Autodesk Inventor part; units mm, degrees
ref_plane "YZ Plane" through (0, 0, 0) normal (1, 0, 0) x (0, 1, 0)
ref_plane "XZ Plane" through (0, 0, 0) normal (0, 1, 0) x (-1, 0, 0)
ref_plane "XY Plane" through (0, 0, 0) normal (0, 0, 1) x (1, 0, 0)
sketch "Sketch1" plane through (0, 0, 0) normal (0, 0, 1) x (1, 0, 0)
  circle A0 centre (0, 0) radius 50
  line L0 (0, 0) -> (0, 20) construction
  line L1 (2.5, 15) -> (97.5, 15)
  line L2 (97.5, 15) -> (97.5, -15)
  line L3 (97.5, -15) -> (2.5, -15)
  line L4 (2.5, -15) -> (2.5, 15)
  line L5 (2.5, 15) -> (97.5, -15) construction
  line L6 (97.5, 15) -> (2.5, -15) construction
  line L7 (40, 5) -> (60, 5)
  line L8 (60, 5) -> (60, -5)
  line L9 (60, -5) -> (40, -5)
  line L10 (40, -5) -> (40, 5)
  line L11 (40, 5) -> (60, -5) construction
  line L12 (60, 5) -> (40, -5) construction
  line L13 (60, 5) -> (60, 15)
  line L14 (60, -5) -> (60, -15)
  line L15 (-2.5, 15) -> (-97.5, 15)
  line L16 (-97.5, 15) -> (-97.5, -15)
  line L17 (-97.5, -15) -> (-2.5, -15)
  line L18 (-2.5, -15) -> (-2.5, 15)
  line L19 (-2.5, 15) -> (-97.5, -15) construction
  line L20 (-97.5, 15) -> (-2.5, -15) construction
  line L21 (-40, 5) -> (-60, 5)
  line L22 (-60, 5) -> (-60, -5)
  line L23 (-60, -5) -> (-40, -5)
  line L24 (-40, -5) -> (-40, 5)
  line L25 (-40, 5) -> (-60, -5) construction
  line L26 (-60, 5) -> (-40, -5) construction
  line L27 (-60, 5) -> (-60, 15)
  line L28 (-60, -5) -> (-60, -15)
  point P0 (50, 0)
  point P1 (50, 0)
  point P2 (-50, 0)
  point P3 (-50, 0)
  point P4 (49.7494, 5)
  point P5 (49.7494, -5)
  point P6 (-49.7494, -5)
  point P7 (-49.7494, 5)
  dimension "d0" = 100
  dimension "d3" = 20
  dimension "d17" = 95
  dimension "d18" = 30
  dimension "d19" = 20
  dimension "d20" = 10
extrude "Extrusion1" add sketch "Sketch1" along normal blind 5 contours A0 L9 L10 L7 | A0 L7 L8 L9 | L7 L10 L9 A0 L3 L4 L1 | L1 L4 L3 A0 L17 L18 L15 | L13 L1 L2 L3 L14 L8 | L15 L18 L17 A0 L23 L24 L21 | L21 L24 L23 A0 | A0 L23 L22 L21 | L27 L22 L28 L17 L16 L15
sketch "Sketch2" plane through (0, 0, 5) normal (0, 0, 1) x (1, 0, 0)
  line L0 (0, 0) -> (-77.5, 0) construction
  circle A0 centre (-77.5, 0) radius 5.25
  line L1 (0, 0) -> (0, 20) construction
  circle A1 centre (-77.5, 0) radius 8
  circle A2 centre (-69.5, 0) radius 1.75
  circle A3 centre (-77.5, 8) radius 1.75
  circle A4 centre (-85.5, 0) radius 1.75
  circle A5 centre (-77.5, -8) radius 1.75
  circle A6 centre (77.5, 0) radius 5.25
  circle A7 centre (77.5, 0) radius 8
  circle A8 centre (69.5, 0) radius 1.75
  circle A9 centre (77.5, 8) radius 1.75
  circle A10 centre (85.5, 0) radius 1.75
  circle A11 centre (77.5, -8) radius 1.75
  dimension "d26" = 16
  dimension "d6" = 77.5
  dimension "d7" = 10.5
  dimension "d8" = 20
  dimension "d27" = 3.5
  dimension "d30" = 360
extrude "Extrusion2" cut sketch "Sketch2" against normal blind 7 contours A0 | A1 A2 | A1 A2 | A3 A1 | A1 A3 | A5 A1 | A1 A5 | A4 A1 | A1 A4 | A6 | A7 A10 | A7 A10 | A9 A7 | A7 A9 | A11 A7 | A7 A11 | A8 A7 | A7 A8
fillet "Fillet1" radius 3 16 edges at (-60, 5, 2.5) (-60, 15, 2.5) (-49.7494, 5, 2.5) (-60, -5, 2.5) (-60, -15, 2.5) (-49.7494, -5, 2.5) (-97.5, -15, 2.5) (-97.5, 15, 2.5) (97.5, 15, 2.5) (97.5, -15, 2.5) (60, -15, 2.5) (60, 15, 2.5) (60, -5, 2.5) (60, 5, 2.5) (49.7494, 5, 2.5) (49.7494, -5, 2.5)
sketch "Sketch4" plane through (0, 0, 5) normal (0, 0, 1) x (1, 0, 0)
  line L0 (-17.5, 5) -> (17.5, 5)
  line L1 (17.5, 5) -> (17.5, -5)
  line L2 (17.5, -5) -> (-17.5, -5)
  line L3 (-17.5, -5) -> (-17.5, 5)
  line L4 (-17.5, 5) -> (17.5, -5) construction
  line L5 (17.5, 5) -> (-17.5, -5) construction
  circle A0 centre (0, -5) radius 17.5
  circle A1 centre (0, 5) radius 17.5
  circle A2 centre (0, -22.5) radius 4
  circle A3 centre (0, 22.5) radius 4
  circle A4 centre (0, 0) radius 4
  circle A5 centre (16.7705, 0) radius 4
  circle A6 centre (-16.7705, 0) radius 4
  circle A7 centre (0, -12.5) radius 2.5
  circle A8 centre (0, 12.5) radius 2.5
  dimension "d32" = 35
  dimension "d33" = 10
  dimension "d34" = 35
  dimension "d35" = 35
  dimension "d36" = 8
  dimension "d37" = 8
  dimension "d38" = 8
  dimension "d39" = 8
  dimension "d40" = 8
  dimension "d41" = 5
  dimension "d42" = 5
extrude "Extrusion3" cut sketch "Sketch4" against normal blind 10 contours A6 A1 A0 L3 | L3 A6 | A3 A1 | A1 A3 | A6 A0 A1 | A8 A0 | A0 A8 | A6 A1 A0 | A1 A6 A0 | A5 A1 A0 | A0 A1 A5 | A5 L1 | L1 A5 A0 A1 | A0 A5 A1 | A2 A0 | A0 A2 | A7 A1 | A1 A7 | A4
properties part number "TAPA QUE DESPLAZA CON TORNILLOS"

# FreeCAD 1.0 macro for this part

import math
import FreeCAD as App
import Part
import Sketcher


def edges_at(feature, points):
    """Names of the edges that pass closest to the given points."""
    edges = feature.Shape.Edges
    near = lambda p: min(range(len(edges)), key=lambda i: edges[i].distToShape(Part.Vertex(*p))[0])
    return sorted({f"Edge{near(p) + 1}" for p in points})

doc = App.newDocument("Part")
params = doc.addObject("Spreadsheet::Sheet", "Params")
for row, (alias, value) in enumerate([
    ("sketch1_radius", "50 mm"),
    ("sketch1_height", "10 mm"),
    ("sketch1_height2", "30 mm"),
    ("sketch1_width", "37.5 mm"),
    ("pad1_length", "5 mm"),
    ("sketch2_diameter", "10.5 mm"),
    ("sketch2_diameter2", "3.5 mm"),
    ("pocket1_length", "7 mm"),
    ("fillet_radius", "3 mm"),
    ("sketch3_diameter", "8 mm"),
    ("sketch3_diameter2", "5 mm"),
    ("pocket2_length", "10 mm"),
], start=1):
    params.set(f"A{row}", alias)
    params.set(f"B{row}", "=" + value)
    params.setAlias(f"B{row}", alias)

body = doc.addObject("PartDesign::Body", "Body")

sketch1 = body.newObject("Sketcher::SketchObject", "Sketch")
sketch1.AttachmentSupport = (doc.getObject("XY_Plane"), [""])
sketch1.MapMode = "FlatFace"
sketch1.addGeometry([
    Part.LineSegment(App.Vector(50, -5, 0), App.Vector(60, -5, 0)),
    Part.LineSegment(App.Vector(60, -5, 0), App.Vector(60, -15, 0)),
    Part.LineSegment(App.Vector(60, -15, 0), App.Vector(98, -15, 0)),
    Part.LineSegment(App.Vector(98, -15, 0), App.Vector(98, 15, 0)),
    Part.LineSegment(App.Vector(98, 15, 0), App.Vector(60, 15, 0)),
    Part.LineSegment(App.Vector(60, 15, 0), App.Vector(60, 5, 0)),
    Part.LineSegment(App.Vector(60, 5, 0), App.Vector(50, 5, 0)),
    Part.ArcOfCircle(Part.Circle(App.Vector(0, 0, 0), App.Vector(0, 0, 1), 50), math.radians(6), math.radians(174)),
    Part.LineSegment(App.Vector(-50, 5, 0), App.Vector(-60, 5, 0)),
    Part.LineSegment(App.Vector(-60, 5, 0), App.Vector(-60, 15, 0)),
    Part.LineSegment(App.Vector(-60, 15, 0), App.Vector(-98, 15, 0)),
    Part.LineSegment(App.Vector(-98, 15, 0), App.Vector(-98, -15, 0)),
    Part.LineSegment(App.Vector(-98, -15, 0), App.Vector(-60, -15, 0)),
    Part.LineSegment(App.Vector(-60, -15, 0), App.Vector(-60, -5, 0)),
    Part.LineSegment(App.Vector(-60, -5, 0), App.Vector(-50, -5, 0)),
    Part.ArcOfCircle(Part.Circle(App.Vector(0, 0, 0), App.Vector(0, 0, 1), 50), math.radians(-174), math.radians(-6)),
], False)
sketch1.addConstraint([
    Sketcher.Constraint("Coincident", 0, 2, 1, 1),
    Sketcher.Constraint("Coincident", 1, 2, 2, 1),
    Sketcher.Constraint("Coincident", 2, 2, 3, 1),
    Sketcher.Constraint("Coincident", 3, 2, 4, 1),
    Sketcher.Constraint("Coincident", 4, 2, 5, 1),
    Sketcher.Constraint("Coincident", 5, 2, 6, 1),
    Sketcher.Constraint("Coincident", 6, 2, 7, 1),
    Sketcher.Constraint("Coincident", 7, 2, 8, 1),
    Sketcher.Constraint("Coincident", 8, 2, 9, 1),
    Sketcher.Constraint("Coincident", 9, 2, 10, 1),
    Sketcher.Constraint("Coincident", 10, 2, 11, 1),
    Sketcher.Constraint("Coincident", 11, 2, 12, 1),
    Sketcher.Constraint("Coincident", 12, 2, 13, 1),
    Sketcher.Constraint("Coincident", 13, 2, 14, 1),
    Sketcher.Constraint("Coincident", 14, 2, 15, 1),
    Sketcher.Constraint("Coincident", 15, 2, 0, 1),
    Sketcher.Constraint("Horizontal", 0),
    Sketcher.Constraint("Vertical", 1),
    Sketcher.Constraint("Horizontal", 2),
    Sketcher.Constraint("Vertical", 3),
    Sketcher.Constraint("Horizontal", 4),
    Sketcher.Constraint("Vertical", 5),
    Sketcher.Constraint("Horizontal", 6),
    Sketcher.Constraint("Horizontal", 8),
    Sketcher.Constraint("Vertical", 9),
    Sketcher.Constraint("Horizontal", 10),
    Sketcher.Constraint("Vertical", 11),
    Sketcher.Constraint("Horizontal", 12),
    Sketcher.Constraint("Vertical", 13),
    Sketcher.Constraint("Horizontal", 14),
    Sketcher.Constraint("Coincident", 7, 3, -1, 1),
    Sketcher.Constraint("Coincident", 15, 3, -1, 1),
    Sketcher.Constraint("Equal", 7, 15),
    Sketcher.Constraint("Symmetric", 0, 2, 8, 2, -1, 1),
    Sketcher.Constraint("Symmetric", 2, 2, 10, 2, -1, 1),
    Sketcher.Constraint("Symmetric", 4, 2, 12, 2, -1, 1),
    Sketcher.Constraint("Symmetric", 5, 2, 8, 2, -2),
    Sketcher.Constraint("Horizontal", 4, 2, 9, 2),
    Sketcher.Constraint("Horizontal", 0, 2, 13, 2),
    Sketcher.Constraint("Radius", 7, 50.0),
    Sketcher.Constraint("DistanceY", 1, 2, 1, 1, 10.0),
    Sketcher.Constraint("DistanceY", 3, 1, 3, 2, 30.0),
    Sketcher.Constraint("DistanceX", 2, 1, 2, 2, 37.5),
    Sketcher.Constraint("DistanceX", -1, 1, 0, 2, 60.0),
])
sketch1.setExpression("Constraints[39]", "Params.sketch1_radius")
sketch1.setExpression("Constraints[40]", "Params.sketch1_height")
sketch1.setExpression("Constraints[41]", "Params.sketch1_height2")
sketch1.setExpression("Constraints[42]", "Params.sketch1_width")
pad1 = body.newObject("PartDesign::Pad", "Pad")
pad1.Profile = sketch1
pad1.setExpression("Length", "Params.pad1_length")

sketch2 = body.newObject("Sketcher::SketchObject", "Sketch001")
sketch2.AttachmentSupport = (doc.getObject("XY_Plane"), [""])
sketch2.MapMode = "FlatFace"
sketch2.AttachmentOffset = App.Placement(App.Vector(0, 0, 5), App.Rotation())
sketch2.addGeometry([
    Part.Circle(App.Vector(-77.5, 0, 0), App.Vector(0, 0, 1), 5.2),
    Part.Circle(App.Vector(-69.5, 0, 0), App.Vector(0, 0, 1), 1.8),
    Part.Circle(App.Vector(-77.5, 8, 0), App.Vector(0, 0, 1), 1.8),
    Part.Circle(App.Vector(-77.5, -8, 0), App.Vector(0, 0, 1), 1.8),
    Part.Circle(App.Vector(-85.5, 0, 0), App.Vector(0, 0, 1), 1.8),
    Part.Circle(App.Vector(77.5, 0, 0), App.Vector(0, 0, 1), 5.2),
    Part.Circle(App.Vector(85.5, 0, 0), App.Vector(0, 0, 1), 1.8),
    Part.Circle(App.Vector(77.5, 8, 0), App.Vector(0, 0, 1), 1.8),
    Part.Circle(App.Vector(77.5, -8, 0), App.Vector(0, 0, 1), 1.8),
    Part.Circle(App.Vector(69.5, 0, 0), App.Vector(0, 0, 1), 1.8),
], False)
sketch2.addConstraint([
    Sketcher.Constraint("Equal", 1, 2),
    Sketcher.Constraint("Equal", 2, 3),
    Sketcher.Constraint("Equal", 3, 4),
    Sketcher.Constraint("Equal", 0, 5),
    Sketcher.Constraint("Equal", 4, 6),
    Sketcher.Constraint("Equal", 6, 7),
    Sketcher.Constraint("Equal", 7, 8),
    Sketcher.Constraint("Equal", 8, 9),
    Sketcher.Constraint("Symmetric", 0, 3, 5, 3, -1, 1),
    Sketcher.Constraint("Symmetric", 4, 3, 6, 3, -1, 1),
    Sketcher.Constraint("Symmetric", 3, 3, 7, 3, -1, 1),
    Sketcher.Constraint("Symmetric", 2, 3, 8, 3, -1, 1),
    Sketcher.Constraint("Symmetric", 1, 3, 9, 3, -1, 1),
    Sketcher.Constraint("Symmetric", 2, 3, 7, 3, -2),
    Sketcher.Constraint("PointOnObject", 0, 3, -1),
    Sketcher.Constraint("PointOnObject", 1, 3, -1),
    Sketcher.Constraint("PointOnObject", 4, 3, -1),
    Sketcher.Constraint("Vertical", 0, 3, 2, 3),
    Sketcher.Constraint("Diameter", 0, 10.5),
    Sketcher.Constraint("Diameter", 1, 3.5),
    Sketcher.Constraint("DistanceY", 3, 3, 2, 3, 16.0),
    Sketcher.Constraint("DistanceX", 4, 3, 1, 3, 16.0),
    Sketcher.Constraint("DistanceX", 0, 3, -1, 1, 77.5),
    Sketcher.Constraint("DistanceX", 0, 3, 1, 3, 8.0),
])
sketch2.setExpression("Constraints[18]", "Params.sketch2_diameter")
sketch2.setExpression("Constraints[19]", "Params.sketch2_diameter2")
pocket1 = body.newObject("PartDesign::Pocket", "Pocket")
pocket1.Profile = sketch2
pocket1.setExpression("Length", "Params.pocket1_length")
doc.recompute()

fillet = body.newObject("PartDesign::Fillet", "Fillet")
fillet.Base = (pocket1, edges_at(pocket1, [
    (-60, 5, 2.5),
    (-60, 15, 2.5),
    (-49.749, 5, 2.5),
    (-60, -5, 2.5),
    (-60, -15, 2.5),
    (-49.749, -5, 2.5),
    (-97.5, -15, 2.5),
    (-97.5, 15, 2.5),
    (97.5, 15, 2.5),
    (97.5, -15, 2.5),
    (60, -15, 2.5),
    (60, 15, 2.5),
    (60, -5, 2.5),
    (60, 5, 2.5),
    (49.749, 5, 2.5),
    (49.749, -5, 2.5),
]))
fillet.setExpression("Radius", "Params.fillet_radius")

sketch3 = body.newObject("Sketcher::SketchObject", "Sketch002")
sketch3.AttachmentSupport = (doc.getObject("XY_Plane"), [""])
sketch3.MapMode = "FlatFace"
sketch3.AttachmentOffset = App.Placement(App.Vector(0, 0, 5), App.Rotation())
sketch3.addGeometry([
    Part.Circle(App.Vector(-16.8, 0, 0), App.Vector(0, 0, 1), 4),
    Part.Circle(App.Vector(0, 22.5, 0), App.Vector(0, 0, 1), 4),
    Part.Circle(App.Vector(0, 12.5, 0), App.Vector(0, 0, 1), 2.5),
    Part.Circle(App.Vector(16.8, 0, 0), App.Vector(0, 0, 1), 4),
    Part.Circle(App.Vector(0, -22.5, 0), App.Vector(0, 0, 1), 4),
    Part.Circle(App.Vector(0, -12.5, 0), App.Vector(0, 0, 1), 2.5),
    Part.Circle(App.Vector(0, 0, 0), App.Vector(0, 0, 1), 4),
], False)
sketch3.addConstraint([
    Sketcher.Constraint("Coincident", 6, 3, -1, 1),
    Sketcher.Constraint("Equal", 0, 1),
    Sketcher.Constraint("Equal", 1, 3),
    Sketcher.Constraint("Equal", 3, 4),
    Sketcher.Constraint("Equal", 2, 5),
    Sketcher.Constraint("Equal", 4, 6),
    Sketcher.Constraint("Symmetric", 0, 3, 3, 3, -1, 1),
    Sketcher.Constraint("Symmetric", 1, 3, 4, 3, -1, 1),
    Sketcher.Constraint("Symmetric", 2, 3, 5, 3, -1, 1),
    Sketcher.Constraint("PointOnObject", 0, 3, -1),
    Sketcher.Constraint("PointOnObject", 1, 3, -2),
    Sketcher.Constraint("PointOnObject", 2, 3, -2),
    Sketcher.Constraint("Diameter", 0, 8.0),
    Sketcher.Constraint("Diameter", 2, 5.0),
    Sketcher.Constraint("DistanceY", 2, 3, 1, 3, 10.0),
    Sketcher.Constraint("DistanceY", 4, 3, 2, 3, 35.0),
    Sketcher.Constraint("DistanceX", 0, 3, 3, 3, 33.541),
])
sketch3.setExpression("Constraints[12]", "Params.sketch3_diameter")
sketch3.setExpression("Constraints[13]", "Params.sketch3_diameter2")
pocket2 = body.newObject("PartDesign::Pocket", "Pocket001")
pocket2.Profile = sketch3
pocket2.setExpression("Length", "Params.pocket2_length")

doc.recompute()
